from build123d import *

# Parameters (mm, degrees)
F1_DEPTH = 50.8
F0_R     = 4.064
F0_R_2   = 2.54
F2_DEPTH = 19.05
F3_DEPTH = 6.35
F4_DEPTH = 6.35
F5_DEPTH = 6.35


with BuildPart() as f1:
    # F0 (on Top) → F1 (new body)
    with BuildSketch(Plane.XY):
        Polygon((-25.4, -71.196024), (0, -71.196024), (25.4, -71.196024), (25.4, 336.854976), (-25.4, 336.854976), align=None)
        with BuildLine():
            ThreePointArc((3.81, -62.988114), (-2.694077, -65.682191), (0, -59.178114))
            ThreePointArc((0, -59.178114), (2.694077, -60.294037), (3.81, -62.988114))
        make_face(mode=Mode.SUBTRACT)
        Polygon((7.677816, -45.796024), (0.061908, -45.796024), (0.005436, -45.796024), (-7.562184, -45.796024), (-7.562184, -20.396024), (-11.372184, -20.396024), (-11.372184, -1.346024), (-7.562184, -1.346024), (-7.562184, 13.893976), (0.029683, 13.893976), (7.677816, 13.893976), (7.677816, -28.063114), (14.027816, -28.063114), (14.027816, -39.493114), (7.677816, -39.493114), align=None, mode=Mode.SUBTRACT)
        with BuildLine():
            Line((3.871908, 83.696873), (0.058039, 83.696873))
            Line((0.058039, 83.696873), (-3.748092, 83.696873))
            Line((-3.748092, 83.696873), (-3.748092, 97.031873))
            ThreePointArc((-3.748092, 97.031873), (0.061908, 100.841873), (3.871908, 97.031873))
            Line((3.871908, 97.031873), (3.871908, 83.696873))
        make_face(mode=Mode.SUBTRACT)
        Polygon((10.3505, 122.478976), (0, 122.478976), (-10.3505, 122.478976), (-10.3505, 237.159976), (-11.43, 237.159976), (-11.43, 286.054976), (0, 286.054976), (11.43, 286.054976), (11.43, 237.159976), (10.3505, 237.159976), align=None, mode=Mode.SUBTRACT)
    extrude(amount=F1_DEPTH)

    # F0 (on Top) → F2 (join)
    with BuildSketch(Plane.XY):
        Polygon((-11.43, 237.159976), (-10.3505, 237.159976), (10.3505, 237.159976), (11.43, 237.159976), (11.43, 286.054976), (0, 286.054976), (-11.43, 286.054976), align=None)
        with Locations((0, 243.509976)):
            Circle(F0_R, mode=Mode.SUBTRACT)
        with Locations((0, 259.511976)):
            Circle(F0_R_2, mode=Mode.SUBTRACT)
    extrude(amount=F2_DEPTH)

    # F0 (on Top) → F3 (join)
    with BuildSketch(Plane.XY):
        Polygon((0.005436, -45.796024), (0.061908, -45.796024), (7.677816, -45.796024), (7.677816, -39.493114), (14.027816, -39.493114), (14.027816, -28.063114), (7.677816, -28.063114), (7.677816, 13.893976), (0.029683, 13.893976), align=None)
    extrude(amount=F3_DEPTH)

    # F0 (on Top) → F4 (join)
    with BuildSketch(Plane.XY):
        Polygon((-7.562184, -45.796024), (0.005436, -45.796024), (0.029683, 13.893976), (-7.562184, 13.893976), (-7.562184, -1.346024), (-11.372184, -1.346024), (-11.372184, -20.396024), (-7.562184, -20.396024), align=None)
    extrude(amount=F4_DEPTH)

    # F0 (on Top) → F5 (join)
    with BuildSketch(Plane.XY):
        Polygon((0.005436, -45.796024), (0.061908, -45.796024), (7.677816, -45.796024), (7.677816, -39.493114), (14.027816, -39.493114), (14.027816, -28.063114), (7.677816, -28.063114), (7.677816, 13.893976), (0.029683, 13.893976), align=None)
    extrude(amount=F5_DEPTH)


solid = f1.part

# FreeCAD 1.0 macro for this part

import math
import FreeCAD as App
import Part
import Sketcher

V = App.Vector
Q = App.Units.Quantity

doc = App.newDocument("Part")
body = doc.addObject("PartDesign::Body", "Body")

# Sketch on XY plane
sketch1 = body.newObject("Sketcher::SketchObject", "Sketch")
sketch1.AttachmentSupport = (doc.getObject("XY_Plane"), [""])
sketch1.MapMode = "FlatFace"
sketch1.addGeometry(Part.LineSegment(V(-25.4, -71.196024, 0), V(25.4, -71.196024, 0)), False)
sketch1.addGeometry(Part.LineSegment(V(25.4, -71.196024, 0), V(25.4, 336.854976, 0)), False)
sketch1.addGeometry(Part.LineSegment(V(25.4, 336.854976, 0), V(-25.4, 336.854976, 0)), False)
sketch1.addGeometry(Part.LineSegment(V(-25.4, 336.854976, 0), V(-25.4, -71.196024, 0)), False)
sketch1.addGeometry(Part.ArcOfCircle(Part.Circle(V(0.000001, -62.988113, 0), V(0, 0, 1), 3.809999), math.radians(-0.000008), math.radians(90.000008)), False)
sketch1.addGeometry(Part.ArcOfCircle(Part.Circle(V(0, -62.988114, 0), V(0, 0, 1), 3.81), math.radians(89.999999), math.radians(360.000001)), False)
sketch1.addGeometry(Part.LineSegment(V(3.871908, 97.031873, 0), V(3.871908, 83.696873, 0)), False)
sketch1.addGeometry(Part.LineSegment(V(3.871908, 83.696873, 0), V(-3.748092, 83.696873, 0)), False)
sketch1.addGeometry(Part.LineSegment(V(-3.748092, 83.696873, 0), V(-3.748092, 97.031873, 0)), False)
sketch1.addGeometry(Part.ArcOfCircle(Part.Circle(V(0.061908, 97.031873, 0), V(0, 0, 1), 3.81), math.radians(0), math.radians(180)), False)
sketch1.addGeometry(Part.LineSegment(V(7.677816, -39.493114, 0), V(7.677816, -45.796024, 0)), False)
sketch1.addGeometry(Part.LineSegment(V(7.677816, -45.796024, 0), V(-7.562184, -45.796024, 0)), False)
sketch1.addGeometry(Part.LineSegment(V(-7.562184, -45.796024, 0), V(-7.562184, -20.396024, 0)), False)
sketch1.addGeometry(Part.LineSegment(V(-7.562184, -20.396024, 0), V(-11.372184, -20.396024, 0)), False)
sketch1.addGeometry(Part.LineSegment(V(-11.372184, -20.396024, 0), V(-11.372184, -1.346024, 0)), False)
sketch1.addGeometry(Part.LineSegment(V(-11.372184, -1.346024, 0), V(-7.562184, -1.346024, 0)), False)
sketch1.addGeometry(Part.LineSegment(V(-7.562184, -1.346024, 0), V(-7.562184, 13.893976, 0)), False)
sketch1.addGeometry(Part.LineSegment(V(-7.562184, 13.893976, 0), V(7.677816, 13.893976, 0)), False)
sketch1.addGeometry(Part.LineSegment(V(7.677816, 13.893976, 0), V(7.677816, -28.063114, 0)), False)
sketch1.addGeometry(Part.LineSegment(V(7.677816, -28.063114, 0), V(14.027816, -28.063114, 0)), False)
sketch1.addGeometry(Part.LineSegment(V(14.027816, -28.063114, 0), V(14.027816, -39.493114, 0)), False)
sketch1.addGeometry(Part.LineSegment(V(14.027816, -39.493114, 0), V(7.677816, -39.493114, 0)), False)
sketch1.addGeometry(Part.LineSegment(V(10.3505, 237.159976, 0), V(10.3505, 122.478976, 0)), False)
sketch1.addGeometry(Part.LineSegment(V(10.3505, 122.478976, 0), V(-10.3505, 122.478976, 0)), False)
sketch1.addGeometry(Part.LineSegment(V(-10.3505, 122.478976, 0), V(-10.3505, 237.159976, 0)), False)
sketch1.addGeometry(Part.LineSegment(V(-10.3505, 237.159976, 0), V(-11.43, 237.159976, 0)), False)
sketch1.addGeometry(Part.LineSegment(V(-11.43, 237.159976, 0), V(-11.43, 286.054976, 0)), False)
sketch1.addGeometry(Part.LineSegment(V(-11.43, 286.054976, 0), V(11.43, 286.054976, 0)), False)
sketch1.addGeometry(Part.LineSegment(V(11.43, 286.054976, 0), V(11.43, 237.159976, 0)), False)
sketch1.addGeometry(Part.LineSegment(V(11.43, 237.159976, 0), V(10.3505, 237.159976, 0)), False)
sketch1.addConstraint(Sketcher.Constraint("Coincident", 0, 2, 1, 1))
sketch1.addConstraint(Sketcher.Constraint("Coincident", 1, 2, 2, 1))
sketch1.addConstraint(Sketcher.Constraint("Coincident", 2, 2, 3, 1))
sketch1.addConstraint(Sketcher.Constraint("Coincident", 3, 2, 0, 1))
sketch1.addConstraint(Sketcher.Constraint("Tangent", 4, 1, 5, 2))
sketch1.addConstraint(Sketcher.Constraint("Coincident", 5, 1, 4, 2))
sketch1.addConstraint(Sketcher.Constraint("Coincident", 6, 2, 7, 1))
sketch1.addConstraint(Sketcher.Constraint("Coincident", 7, 2, 8, 1))
sketch1.addConstraint(Sketcher.Constraint("Tangent", 8, 2, 9, 2))
sketch1.addConstraint(Sketcher.Constraint("Tangent", 9, 1, 6, 1))
sketch1.addConstraint(Sketcher.Constraint("Coincident", 10, 2, 11, 1))
sketch1.addConstraint(Sketcher.Constraint("Coincident", 11, 2, 12, 1))
sketch1.addConstraint(Sketcher.Constraint("Coincident", 12, 2, 13, 1))
sketch1.addConstraint(Sketcher.Constraint("Coincident", 13, 2, 14, 1))
sketch1.addConstraint(Sketcher.Constraint("Coincident", 14, 2, 15, 1))
sketch1.addConstraint(Sketcher.Constraint("Coincident", 15, 2, 16, 1))
sketch1.addConstraint(Sketcher.Constraint("Coincident", 16, 2, 17, 1))
sketch1.addConstraint(Sketcher.Constraint("Coincident", 17, 2, 18, 1))
sketch1.addConstraint(Sketcher.Constraint("Coincident", 18, 2, 19, 1))
sketch1.addConstraint(Sketcher.Constraint("Coincident", 19, 2, 20, 1))
sketch1.addConstraint(Sketcher.Constraint("Coincident", 20, 2, 21, 1))
sketch1.addConstraint(Sketcher.Constraint("Coincident", 21, 2, 10, 1))
sketch1.addConstraint(Sketcher.Constraint("Coincident", 22, 2, 23, 1))
sketch1.addConstraint(Sketcher.Constraint("Coincident", 23, 2, 24, 1))
sketch1.addConstraint(Sketcher.Constraint("Coincident", 24, 2, 25, 1))
sketch1.addConstraint(Sketcher.Constraint("Coincident", 25, 2, 26, 1))
sketch1.addConstraint(Sketcher.Constraint("Coincident", 26, 2, 27, 1))
sketch1.addConstraint(Sketcher.Constraint("Coincident", 27, 2, 28, 1))
sketch1.addConstraint(Sketcher.Constraint("Coincident", 28, 2, 29, 1))
sketch1.addConstraint(Sketcher.Constraint("Coincident", 29, 2, 22, 1))
sketch1.addConstraint(Sketcher.Constraint("Horizontal", 0))
sketch1.addConstraint(Sketcher.Constraint("Vertical", 1))
sketch1.addConstraint(Sketcher.Constraint("Horizontal", 2))
sketch1.addConstraint(Sketcher.Constraint("Vertical", 3))
sketch1.addConstraint(Sketcher.Constraint("Vertical", 6))
sketch1.addConstraint(Sketcher.Constraint("Horizontal", 7))
sketch1.addConstraint(Sketcher.Constraint("Vertical", 8))
sketch1.addConstraint(Sketcher.Constraint("Vertical", 10))
sketch1.addConstraint(Sketcher.Constraint("Horizontal", 11))
sketch1.addConstraint(Sketcher.Constraint("Vertical", 12))
sketch1.addConstraint(Sketcher.Constraint("Horizontal", 13))
sketch1.addConstraint(Sketcher.Constraint("Vertical", 14))
sketch1.addConstraint(Sketcher.Constraint("Horizontal", 15))
sketch1.addConstraint(Sketcher.Constraint("Vertical", 16))
sketch1.addConstraint(Sketcher.Constraint("Horizontal", 17))
sketch1.addConstraint(Sketcher.Constraint("Vertical", 18))
sketch1.addConstraint(Sketcher.Constraint("Horizontal", 19))
sketch1.addConstraint(Sketcher.Constraint("Vertical", 20))
sketch1.addConstraint(Sketcher.Constraint("Horizontal", 21))
sketch1.addConstraint(Sketcher.Constraint("Vertical", 22))
sketch1.addConstraint(Sketcher.Constraint("Horizontal", 23))
sketch1.addConstraint(Sketcher.Constraint("Vertical", 24))
sketch1.addConstraint(Sketcher.Constraint("Horizontal", 25))
sketch1.addConstraint(Sketcher.Constraint("Vertical", 26))
sketch1.addConstraint(Sketcher.Constraint("Horizontal", 27))
sketch1.addConstraint(Sketcher.Constraint("Vertical", 28))
sketch1.addConstraint(Sketcher.Constraint("Horizontal", 29))
sketch1.addConstraint(Sketcher.Constraint("Equal", 5, 9))
sketch1.addConstraint(Sketcher.Constraint("Symmetric", 25, 2, 28, 2, -2))
sketch1.addConstraint(Sketcher.Constraint("PointOnObject", 4, 3, -2))
sketch1.addConstraint(Sketcher.Constraint("PointOnObject", 5, 1, -2))
sketch1.addConstraint(Sketcher.Constraint("Horizontal", 5, 3, 4, 1))
sketch1.addConstraint(Sketcher.Constraint("Vertical", 12, 2, 15, 2))
sketch1.addConstraint(Sketcher.Constraint("Vertical", 10, 2, 17, 2))
sketch1.addConstraint(Sketcher.Constraint("Equal", 25, 29))
sketch1.addConstraint(Sketcher.Constraint("Equal", 17, 16))
sketch1.addConstraint(Sketcher.Constraint("DistanceX", 0, 1, 0, 2, Q("2 in")))
sketch1.addConstraint(Sketcher.Constraint("DistanceY", 12, 1, 12, 2, Q("1 in")))
sketch1.addConstraint(Sketcher.Constraint("Radius", 4, Q("0.15 in")))
sketch1.addConstraint(Sketcher.Constraint("DistanceX", 11, 2, 11, 1, Q("0.6 in")))
sketch1.addConstraint(Sketcher.Constraint("DistanceX", 27, 1, 27, 2, Q("0.9 in")))
sketch1.addConstraint(Sketcher.Constraint("DistanceX", -1, 1, 0, 2, Q("1 in")))
sketch1.addConstraint(Sketcher.Constraint("DistanceY", 0, 2, 10, 2, Q("1 in")))
sketch1.addConstraint(Sketcher.Constraint("DistanceX", 13, 2, 19, 2, Q("1 in")))
sketch1.addConstraint(Sketcher.Constraint("DistanceY", 26, 2, 2, 2, Q("2 in")))
sketch1.addConstraint(Sketcher.Constraint("DistanceX", 13, 2, 13, 1, Q("0.15 in")))
sketch1.addConstraint(Sketcher.Constraint("DistanceY", 14, 1, 14, 2, Q("0.75 in")))
sketch1.addConstraint(Sketcher.Constraint("DistanceY", 20, 2, 20, 1, Q("0.45 in")))
sketch1.addConstraint(Sketcher.Constraint("DistanceX", 23, 2, 23, 1, Q("0.815 in")))
sketch1.addConstraint(Sketcher.Constraint("DistanceY", 1, 1, 1, 2, Q("16.065 in")))
sketch1.addConstraint(Sketcher.Constraint("DistanceY", 6, 2, 6, 1, Q("0.525 in")))
sketch1.addConstraint(Sketcher.Constraint("DistanceY", 22, 2, 22, 1, Q("4.515 in")))
sketch1.addConstraint(Sketcher.Constraint("DistanceY", 26, 1, 26, 2, Q("1.925 in")))
sketch1.addConstraint(Sketcher.Constraint("DistanceY", 5, 1, 20, 2, Q("0.775 in")))
sketch1.addConstraint(Sketcher.Constraint("DistanceY", 10, 2, 10, 1, Q("6.30291 mm")))
sketch1.addConstraint(Sketcher.Constraint("DistanceX", 5, 3, 9, 3, Q("0.061908 mm")))
sketch1.addConstraint(Sketcher.Constraint("DistanceY", 4, 3, -1, 1, Q("62.988113 mm")))
sketch1.addConstraint(Sketcher.Constraint("DistanceY", -1, 1, 9, 3, Q("97.031873 mm")))
sketch1.addConstraint(Sketcher.Constraint("DistanceX", -1, 1, 10, 2, Q("7.677816 mm")))
pad1 = body.newObject("PartDesign::Pad", "Pad")
pad1.Profile = sketch1
pad1.Length = Q("2 in")

# Sketch on XY plane
sketch2 = body.newObject("Sketcher::SketchObject", "Sketch001")
sketch2.AttachmentSupport = (doc.getObject("XY_Plane"), [""])
sketch2.MapMode = "FlatFace"
sketch2.addGeometry(Part.LineSegment(V(-11.43, 237.159976, 0), V(11.43, 237.159976, 0)), False)
sketch2.addGeometry(Part.LineSegment(V(11.43, 237.159976, 0), V(11.43, 286.054976, 0)), False)
sketch2.addGeometry(Part.LineSegment(V(11.43, 286.054976, 0), V(-11.43, 286.054976, 0)), False)
sketch2.addGeometry(Part.LineSegment(V(-11.43, 286.054976, 0), V(-11.43, 237.159976, 0)), False)
sketch2.addGeometry(Part.Circle(V(0, 243.509976, 0), V(0, 0, 1), 4.064), False)
sketch2.addGeometry(Part.Circle(V(0, 259.511976, 0), V(0, 0, 1), 2.54), False)
sketch2.addConstraint(Sketcher.Constraint("Coincident", 0, 2, 1, 1))
sketch2.addConstraint(Sketcher.Constraint("Coincident", 1, 2, 2, 1))
sketch2.addConstraint(Sketcher.Constraint("Coincident", 2, 2, 3, 1))
sketch2.addConstraint(Sketcher.Constraint("Coincident", 3, 2, 0, 1))
sketch2.addConstraint(Sketcher.Constraint("Horizontal", 0))
sketch2.addConstraint(Sketcher.Constraint("Vertical", 1))
sketch2.addConstraint(Sketcher.Constraint("Horizontal", 2))
sketch2.addConstraint(Sketcher.Constraint("Vertical", 3))
sketch2.addConstraint(Sketcher.Constraint("PointOnObject", 4, 3, -2))
sketch2.addConstraint(Sketcher.Constraint("PointOnObject", 5, 3, -2))
sketch2.addConstraint(Sketcher.Constraint("Diameter", 5, Q("0.2 in")))
sketch2.addConstraint(Sketcher.Constraint("Diameter", 4, Q("0.32 in")))
sketch2.addConstraint(Sketcher.Constraint("DistanceX", 0, 1, 0, 2, Q("0.9 in")))
sketch2.addConstraint(Sketcher.Constraint("DistanceY", 1, 1, 1, 2, Q("1.925 in")))
sketch2.addConstraint(Sketcher.Constraint("DistanceX", -1, 1, 0, 2, Q("0.45 in")))
sketch2.addConstraint(Sketcher.Constraint("DistanceY", 4, 3, 5, 3, Q("0.63 in")))
sketch2.addConstraint(Sketcher.Constraint("DistanceY", 0, 2, 4, 3, Q("0.25 in")))
sketch2.addConstraint(Sketcher.Constraint("DistanceY", -1, 1, 4, 3, Q("243.509976 mm")))
pad2 = body.newObject("PartDesign::Pad", "Pad001")
pad2.Profile = sketch2
pad2.Length = Q("0.75 in")

# Sketch on XY plane
sketch3 = body.newObject("Sketcher::SketchObject", "Sketch002")
sketch3.AttachmentSupport = (doc.getObject("XY_Plane"), [""])
sketch3.MapMode = "FlatFace"
sketch3.addGeometry(Part.LineSegment(V(0.005436, -45.796024, 0), V(7.677816, -45.796024, 0)), False)
sketch3.addGeometry(Part.LineSegment(V(7.677816, -45.796024, 0), V(7.677816, -39.493114, 0)), False)
sketch3.addGeometry(Part.LineSegment(V(7.677816, -39.493114, 0), V(14.027816, -39.493114, 0)), False)
sketch3.addGeometry(Part.LineSegment(V(14.027816, -39.493114, 0), V(14.027816, -28.063114, 0)), False)
sketch3.addGeometry(Part.LineSegment(V(14.027816, -28.063114, 0), V(7.677816, -28.063114, 0)), False)
sketch3.addGeometry(Part.LineSegment(V(7.677816, -28.063114, 0), V(7.677816, 13.893976, 0)), False)
sketch3.addGeometry(Part.LineSegment(V(7.677816, 13.893976, 0), V(0.029683, 13.893976, 0)), False)
sketch3.addGeometry(Part.LineSegment(V(0.029683, 13.893976, 0), V(0.005436, -45.796024, 0)), False)
sketch3.addConstraint(Sketcher.Constraint("Coincident", 0, 2, 1, 1))
sketch3.addConstraint(Sketcher.Constraint("Coincident", 1, 2, 2, 1))
sketch3.addConstraint(Sketcher.Constraint("Coincident", 2, 2, 3, 1))
sketch3.addConstraint(Sketcher.Constraint("Coincident", 3, 2, 4, 1))
sketch3.addConstraint(Sketcher.Constraint("Coincident", 4, 2, 5, 1))
sketch3.addConstraint(Sketcher.Constraint("Coincident", 5, 2, 6, 1))
sketch3.addConstraint(Sketcher.Constraint("Coincident", 6, 2, 7, 1))
sketch3.addConstraint(Sketcher.Constraint("Coincident", 7, 2, 0, 1))
sketch3.addConstraint(Sketcher.Constraint("Horizontal", 0))
sketch3.addConstraint(Sketcher.Constraint("Vertical", 1))
sketch3.addConstraint(Sketcher.Constraint("Horizontal", 2))
sketch3.addConstraint(Sketcher.Constraint("Vertical", 3))
sketch3.addConstraint(Sketcher.Constraint("Horizontal", 4))
sketch3.addConstraint(Sketcher.Constraint("Vertical", 5))
sketch3.addConstraint(Sketcher.Constraint("Horizontal", 6))
sketch3.addConstraint(Sketcher.Constraint("Vertical", 1, 2, 4, 2))
sketch3.addConstraint(Sketcher.Constraint("DistanceX", 2, 1, 2, 2, Q("0.25 in")))
sketch3.addConstraint(Sketcher.Constraint("DistanceY", 3, 1, 3, 2, Q("0.45 in")))
sketch3.addConstraint(Sketcher.Constraint("Distance", 7, Q("2.3500002 in")))
sketch3.addConstraint(Sketcher.Constraint("DistanceX", 0, 1, 0, 2, Q("7.67238 mm")))
sketch3.addConstraint(Sketcher.Constraint("DistanceY", 1, 1, 1, 2, Q("6.30291 mm")))
sketch3.addConstraint(Sketcher.Constraint("DistanceX", 6, 2, 6, 1, Q("7.648133 mm")))
sketch3.addConstraint(Sketcher.Constraint("DistanceX", -1, 1, 0, 2, Q("7.677816 mm")))
sketch3.addConstraint(Sketcher.Constraint("DistanceY", 0, 2, -1, 1, Q("45.796024 mm")))
pad3 = body.newObject("PartDesign::Pad", "Pad002")
pad3.Profile = sketch3
pad3.Length = Q("0.25 in")

# Sketch on XY plane
sketch4 = body.newObject("Sketcher::SketchObject", "Sketch003")
sketch4.AttachmentSupport = (doc.getObject("XY_Plane"), [""])
sketch4.MapMode = "FlatFace"
sketch4.addGeometry(Part.LineSegment(V(-7.562184, -45.796024, 0), V(0.005436, -45.796024, 0)), False)
sketch4.addGeometry(Part.LineSegment(V(0.005436, -45.796024, 0), V(0.029683, 13.893976, 0)), False)
sketch4.addGeometry(Part.LineSegment(V(0.029683, 13.893976, 0), V(-7.562184, 13.893976, 0)), False)
sketch4.addGeometry(Part.LineSegment(V(-7.562184, 13.893976, 0), V(-7.562184, -1.346024, 0)), False)
sketch4.addGeometry(Part.LineSegment(V(-7.562184, -1.346024, 0), V(-11.372184, -1.346024, 0)), False)
sketch4.addGeometry(Part.LineSegment(V(-11.372184, -1.346024, 0), V(-11.372184, -20.396024, 0)), False)
sketch4.addGeometry(Part.LineSegment(V(-11.372184, -20.396024, 0), V(-7.562184, -20.396024, 0)), False)
sketch4.addGeometry(Part.LineSegment(V(-7.562184, -20.396024, 0), V(-7.562184, -45.796024, 0)), False)
sketch4.addConstraint(Sketcher.Constraint("Coincident", 0, 2, 1, 1))
sketch4.addConstraint(Sketcher.Constraint("Coincident", 1, 2, 2, 1))
sketch4.addConstraint(Sketcher.Constraint("Coincident", 2, 2, 3, 1))
sketch4.addConstraint(Sketcher.Constraint("Coincident", 3, 2, 4, 1))
sketch4.addConstraint(Sketcher.Constraint("Coincident", 4, 2, 5, 1))
sketch4.addConstraint(Sketcher.Constraint("Coincident", 5, 2, 6, 1))
sketch4.addConstraint(Sketcher.Constraint("Coincident", 6, 2, 7, 1))
sketch4.addConstraint(Sketcher.Constraint("Coincident", 7, 2, 0, 1))
sketch4.addConstraint(Sketcher.Constraint("Horizontal", 0))
sketch4.addConstraint(Sketcher.Constraint("Horizontal", 2))
sketch4.addConstraint(Sketcher.Constraint("Vertical", 3))
sketch4.addConstraint(Sketcher.Constraint("Horizontal", 4))
sketch4.addConstraint(Sketcher.Constraint("Vertical", 5))
sketch4.addConstraint(Sketcher.Constraint("Horizontal", 6))
sketch4.addConstraint(Sketcher.Constraint("Vertical", 7))
sketch4.addConstraint(Sketcher.Constraint("Vertical", 3, 2, 6, 2))
sketch4.addConstraint(Sketcher.Constraint("DistanceY", 7, 2, 7, 1, Q("1 in")))
sketch4.addConstraint(Sketcher.Constraint("DistanceY", 3, 2, 3, 1, Q("0.6 in")))
sketch4.addConstraint(Sketcher.Constraint("DistanceX", 4, 2, 4, 1, Q("0.15 in")))
sketch4.addConstraint(Sketcher.Constraint("DistanceY", 5, 2, 5, 1, Q("0.75 in")))
sketch4.addConstraint(Sketcher.Constraint("DistanceX", 0, 1, 0, 2, Q("7.56762 mm")))
sketch4.addConstraint(Sketcher.Constraint("DistanceX", 2, 2, 2, 1, Q("7.591867 mm")))
sketch4.addConstraint(Sketcher.Constraint("DistanceX", -1, 1, 0, 2, Q("0.005436 mm")))
sketch4.addConstraint(Sketcher.Constraint("DistanceY", 0, 2, -1, 1, Q("45.796024 mm")))
pad4 = body.newObject("PartDesign::Pad", "Pad003")
pad4.Profile = sketch4
pad4.Length = Q("0.25 in")

# Sketch on XY plane
sketch5 = body.newObject("Sketcher::SketchObject", "Sketch004")
sketch5.AttachmentSupport = (doc.getObject("XY_Plane"), [""])
sketch5.MapMode = "FlatFace"
sketch5.addGeometry(Part.LineSegment(V(0.005436, -45.796024, 0), V(7.677816, -45.796024, 0)), False)
sketch5.addGeometry(Part.LineSegment(V(7.677816, -45.796024, 0), V(7.677816, -39.493114, 0)), False)
sketch5.addGeometry(Part.LineSegment(V(7.677816, -39.493114, 0), V(14.027816, -39.493114, 0)), False)
sketch5.addGeometry(Part.LineSegment(V(14.027816, -39.493114, 0), V(14.027816, -28.063114, 0)), False)
sketch5.addGeometry(Part.LineSegment(V(14.027816, -28.063114, 0), V(7.677816, -28.063114, 0)), False)
sketch5.addGeometry(Part.LineSegment(V(7.677816, -28.063114, 0), V(7.677816, 13.893976, 0)), False)
sketch5.addGeometry(Part.LineSegment(V(7.677816, 13.893976, 0), V(0.029683, 13.893976, 0)), False)
sketch5.addGeometry(Part.LineSegment(V(0.029683, 13.893976, 0), V(0.005436, -45.796024, 0)), False)
sketch5.addConstraint(Sketcher.Constraint("Coincident", 0, 2, 1, 1))
sketch5.addConstraint(Sketcher.Constraint("Coincident", 1, 2, 2, 1))
sketch5.addConstraint(Sketcher.Constraint("Coincident", 2, 2, 3, 1))
sketch5.addConstraint(Sketcher.Constraint("Coincident", 3, 2, 4, 1))
sketch5.addConstraint(Sketcher.Constraint("Coincident", 4, 2, 5, 1))
sketch5.addConstraint(Sketcher.Constraint("Coincident", 5, 2, 6, 1))
sketch5.addConstraint(Sketcher.Constraint("Coincident", 6, 2, 7, 1))
sketch5.addConstraint(Sketcher.Constraint("Coincident", 7, 2, 0, 1))
sketch5.addConstraint(Sketcher.Constraint("Horizontal", 0))
sketch5.addConstraint(Sketcher.Constraint("Vertical", 1))
sketch5.addConstraint(Sketcher.Constraint("Horizontal", 2))
sketch5.addConstraint(Sketcher.Constraint("Vertical", 3))
sketch5.addConstraint(Sketcher.Constraint("Horizontal", 4))
sketch5.addConstraint(Sketcher.Constraint("Vertical", 5))
sketch5.addConstraint(Sketcher.Constraint("Horizontal", 6))
sketch5.addConstraint(Sketcher.Constraint("Vertical", 1, 2, 4, 2))
sketch5.addConstraint(Sketcher.Constraint("DistanceX", 2, 1, 2, 2, Q("0.25 in")))
sketch5.addConstraint(Sketcher.Constraint("DistanceY", 3, 1, 3, 2, Q("0.45 in")))
sketch5.addConstraint(Sketcher.Constraint("Distance", 7, Q("2.3500002 in")))
sketch5.addConstraint(Sketcher.Constraint("DistanceX", 0, 1, 0, 2, Q("7.67238 mm")))
sketch5.addConstraint(Sketcher.Constraint("DistanceY", 1, 1, 1, 2, Q("6.30291 mm")))
sketch5.addConstraint(Sketcher.Constraint("DistanceX", 6, 2, 6, 1, Q("7.648133 mm")))
sketch5.addConstraint(Sketcher.Constraint("DistanceX", -1, 1, 0, 2, Q("7.677816 mm")))
sketch5.addConstraint(Sketcher.Constraint("DistanceY", 0, 2, -1, 1, Q("45.796024 mm")))
pad5 = body.newObject("PartDesign::Pad", "Pad004")
pad5.Profile = sketch5
pad5.Length = Q("0.25 in")

doc.recompute()
